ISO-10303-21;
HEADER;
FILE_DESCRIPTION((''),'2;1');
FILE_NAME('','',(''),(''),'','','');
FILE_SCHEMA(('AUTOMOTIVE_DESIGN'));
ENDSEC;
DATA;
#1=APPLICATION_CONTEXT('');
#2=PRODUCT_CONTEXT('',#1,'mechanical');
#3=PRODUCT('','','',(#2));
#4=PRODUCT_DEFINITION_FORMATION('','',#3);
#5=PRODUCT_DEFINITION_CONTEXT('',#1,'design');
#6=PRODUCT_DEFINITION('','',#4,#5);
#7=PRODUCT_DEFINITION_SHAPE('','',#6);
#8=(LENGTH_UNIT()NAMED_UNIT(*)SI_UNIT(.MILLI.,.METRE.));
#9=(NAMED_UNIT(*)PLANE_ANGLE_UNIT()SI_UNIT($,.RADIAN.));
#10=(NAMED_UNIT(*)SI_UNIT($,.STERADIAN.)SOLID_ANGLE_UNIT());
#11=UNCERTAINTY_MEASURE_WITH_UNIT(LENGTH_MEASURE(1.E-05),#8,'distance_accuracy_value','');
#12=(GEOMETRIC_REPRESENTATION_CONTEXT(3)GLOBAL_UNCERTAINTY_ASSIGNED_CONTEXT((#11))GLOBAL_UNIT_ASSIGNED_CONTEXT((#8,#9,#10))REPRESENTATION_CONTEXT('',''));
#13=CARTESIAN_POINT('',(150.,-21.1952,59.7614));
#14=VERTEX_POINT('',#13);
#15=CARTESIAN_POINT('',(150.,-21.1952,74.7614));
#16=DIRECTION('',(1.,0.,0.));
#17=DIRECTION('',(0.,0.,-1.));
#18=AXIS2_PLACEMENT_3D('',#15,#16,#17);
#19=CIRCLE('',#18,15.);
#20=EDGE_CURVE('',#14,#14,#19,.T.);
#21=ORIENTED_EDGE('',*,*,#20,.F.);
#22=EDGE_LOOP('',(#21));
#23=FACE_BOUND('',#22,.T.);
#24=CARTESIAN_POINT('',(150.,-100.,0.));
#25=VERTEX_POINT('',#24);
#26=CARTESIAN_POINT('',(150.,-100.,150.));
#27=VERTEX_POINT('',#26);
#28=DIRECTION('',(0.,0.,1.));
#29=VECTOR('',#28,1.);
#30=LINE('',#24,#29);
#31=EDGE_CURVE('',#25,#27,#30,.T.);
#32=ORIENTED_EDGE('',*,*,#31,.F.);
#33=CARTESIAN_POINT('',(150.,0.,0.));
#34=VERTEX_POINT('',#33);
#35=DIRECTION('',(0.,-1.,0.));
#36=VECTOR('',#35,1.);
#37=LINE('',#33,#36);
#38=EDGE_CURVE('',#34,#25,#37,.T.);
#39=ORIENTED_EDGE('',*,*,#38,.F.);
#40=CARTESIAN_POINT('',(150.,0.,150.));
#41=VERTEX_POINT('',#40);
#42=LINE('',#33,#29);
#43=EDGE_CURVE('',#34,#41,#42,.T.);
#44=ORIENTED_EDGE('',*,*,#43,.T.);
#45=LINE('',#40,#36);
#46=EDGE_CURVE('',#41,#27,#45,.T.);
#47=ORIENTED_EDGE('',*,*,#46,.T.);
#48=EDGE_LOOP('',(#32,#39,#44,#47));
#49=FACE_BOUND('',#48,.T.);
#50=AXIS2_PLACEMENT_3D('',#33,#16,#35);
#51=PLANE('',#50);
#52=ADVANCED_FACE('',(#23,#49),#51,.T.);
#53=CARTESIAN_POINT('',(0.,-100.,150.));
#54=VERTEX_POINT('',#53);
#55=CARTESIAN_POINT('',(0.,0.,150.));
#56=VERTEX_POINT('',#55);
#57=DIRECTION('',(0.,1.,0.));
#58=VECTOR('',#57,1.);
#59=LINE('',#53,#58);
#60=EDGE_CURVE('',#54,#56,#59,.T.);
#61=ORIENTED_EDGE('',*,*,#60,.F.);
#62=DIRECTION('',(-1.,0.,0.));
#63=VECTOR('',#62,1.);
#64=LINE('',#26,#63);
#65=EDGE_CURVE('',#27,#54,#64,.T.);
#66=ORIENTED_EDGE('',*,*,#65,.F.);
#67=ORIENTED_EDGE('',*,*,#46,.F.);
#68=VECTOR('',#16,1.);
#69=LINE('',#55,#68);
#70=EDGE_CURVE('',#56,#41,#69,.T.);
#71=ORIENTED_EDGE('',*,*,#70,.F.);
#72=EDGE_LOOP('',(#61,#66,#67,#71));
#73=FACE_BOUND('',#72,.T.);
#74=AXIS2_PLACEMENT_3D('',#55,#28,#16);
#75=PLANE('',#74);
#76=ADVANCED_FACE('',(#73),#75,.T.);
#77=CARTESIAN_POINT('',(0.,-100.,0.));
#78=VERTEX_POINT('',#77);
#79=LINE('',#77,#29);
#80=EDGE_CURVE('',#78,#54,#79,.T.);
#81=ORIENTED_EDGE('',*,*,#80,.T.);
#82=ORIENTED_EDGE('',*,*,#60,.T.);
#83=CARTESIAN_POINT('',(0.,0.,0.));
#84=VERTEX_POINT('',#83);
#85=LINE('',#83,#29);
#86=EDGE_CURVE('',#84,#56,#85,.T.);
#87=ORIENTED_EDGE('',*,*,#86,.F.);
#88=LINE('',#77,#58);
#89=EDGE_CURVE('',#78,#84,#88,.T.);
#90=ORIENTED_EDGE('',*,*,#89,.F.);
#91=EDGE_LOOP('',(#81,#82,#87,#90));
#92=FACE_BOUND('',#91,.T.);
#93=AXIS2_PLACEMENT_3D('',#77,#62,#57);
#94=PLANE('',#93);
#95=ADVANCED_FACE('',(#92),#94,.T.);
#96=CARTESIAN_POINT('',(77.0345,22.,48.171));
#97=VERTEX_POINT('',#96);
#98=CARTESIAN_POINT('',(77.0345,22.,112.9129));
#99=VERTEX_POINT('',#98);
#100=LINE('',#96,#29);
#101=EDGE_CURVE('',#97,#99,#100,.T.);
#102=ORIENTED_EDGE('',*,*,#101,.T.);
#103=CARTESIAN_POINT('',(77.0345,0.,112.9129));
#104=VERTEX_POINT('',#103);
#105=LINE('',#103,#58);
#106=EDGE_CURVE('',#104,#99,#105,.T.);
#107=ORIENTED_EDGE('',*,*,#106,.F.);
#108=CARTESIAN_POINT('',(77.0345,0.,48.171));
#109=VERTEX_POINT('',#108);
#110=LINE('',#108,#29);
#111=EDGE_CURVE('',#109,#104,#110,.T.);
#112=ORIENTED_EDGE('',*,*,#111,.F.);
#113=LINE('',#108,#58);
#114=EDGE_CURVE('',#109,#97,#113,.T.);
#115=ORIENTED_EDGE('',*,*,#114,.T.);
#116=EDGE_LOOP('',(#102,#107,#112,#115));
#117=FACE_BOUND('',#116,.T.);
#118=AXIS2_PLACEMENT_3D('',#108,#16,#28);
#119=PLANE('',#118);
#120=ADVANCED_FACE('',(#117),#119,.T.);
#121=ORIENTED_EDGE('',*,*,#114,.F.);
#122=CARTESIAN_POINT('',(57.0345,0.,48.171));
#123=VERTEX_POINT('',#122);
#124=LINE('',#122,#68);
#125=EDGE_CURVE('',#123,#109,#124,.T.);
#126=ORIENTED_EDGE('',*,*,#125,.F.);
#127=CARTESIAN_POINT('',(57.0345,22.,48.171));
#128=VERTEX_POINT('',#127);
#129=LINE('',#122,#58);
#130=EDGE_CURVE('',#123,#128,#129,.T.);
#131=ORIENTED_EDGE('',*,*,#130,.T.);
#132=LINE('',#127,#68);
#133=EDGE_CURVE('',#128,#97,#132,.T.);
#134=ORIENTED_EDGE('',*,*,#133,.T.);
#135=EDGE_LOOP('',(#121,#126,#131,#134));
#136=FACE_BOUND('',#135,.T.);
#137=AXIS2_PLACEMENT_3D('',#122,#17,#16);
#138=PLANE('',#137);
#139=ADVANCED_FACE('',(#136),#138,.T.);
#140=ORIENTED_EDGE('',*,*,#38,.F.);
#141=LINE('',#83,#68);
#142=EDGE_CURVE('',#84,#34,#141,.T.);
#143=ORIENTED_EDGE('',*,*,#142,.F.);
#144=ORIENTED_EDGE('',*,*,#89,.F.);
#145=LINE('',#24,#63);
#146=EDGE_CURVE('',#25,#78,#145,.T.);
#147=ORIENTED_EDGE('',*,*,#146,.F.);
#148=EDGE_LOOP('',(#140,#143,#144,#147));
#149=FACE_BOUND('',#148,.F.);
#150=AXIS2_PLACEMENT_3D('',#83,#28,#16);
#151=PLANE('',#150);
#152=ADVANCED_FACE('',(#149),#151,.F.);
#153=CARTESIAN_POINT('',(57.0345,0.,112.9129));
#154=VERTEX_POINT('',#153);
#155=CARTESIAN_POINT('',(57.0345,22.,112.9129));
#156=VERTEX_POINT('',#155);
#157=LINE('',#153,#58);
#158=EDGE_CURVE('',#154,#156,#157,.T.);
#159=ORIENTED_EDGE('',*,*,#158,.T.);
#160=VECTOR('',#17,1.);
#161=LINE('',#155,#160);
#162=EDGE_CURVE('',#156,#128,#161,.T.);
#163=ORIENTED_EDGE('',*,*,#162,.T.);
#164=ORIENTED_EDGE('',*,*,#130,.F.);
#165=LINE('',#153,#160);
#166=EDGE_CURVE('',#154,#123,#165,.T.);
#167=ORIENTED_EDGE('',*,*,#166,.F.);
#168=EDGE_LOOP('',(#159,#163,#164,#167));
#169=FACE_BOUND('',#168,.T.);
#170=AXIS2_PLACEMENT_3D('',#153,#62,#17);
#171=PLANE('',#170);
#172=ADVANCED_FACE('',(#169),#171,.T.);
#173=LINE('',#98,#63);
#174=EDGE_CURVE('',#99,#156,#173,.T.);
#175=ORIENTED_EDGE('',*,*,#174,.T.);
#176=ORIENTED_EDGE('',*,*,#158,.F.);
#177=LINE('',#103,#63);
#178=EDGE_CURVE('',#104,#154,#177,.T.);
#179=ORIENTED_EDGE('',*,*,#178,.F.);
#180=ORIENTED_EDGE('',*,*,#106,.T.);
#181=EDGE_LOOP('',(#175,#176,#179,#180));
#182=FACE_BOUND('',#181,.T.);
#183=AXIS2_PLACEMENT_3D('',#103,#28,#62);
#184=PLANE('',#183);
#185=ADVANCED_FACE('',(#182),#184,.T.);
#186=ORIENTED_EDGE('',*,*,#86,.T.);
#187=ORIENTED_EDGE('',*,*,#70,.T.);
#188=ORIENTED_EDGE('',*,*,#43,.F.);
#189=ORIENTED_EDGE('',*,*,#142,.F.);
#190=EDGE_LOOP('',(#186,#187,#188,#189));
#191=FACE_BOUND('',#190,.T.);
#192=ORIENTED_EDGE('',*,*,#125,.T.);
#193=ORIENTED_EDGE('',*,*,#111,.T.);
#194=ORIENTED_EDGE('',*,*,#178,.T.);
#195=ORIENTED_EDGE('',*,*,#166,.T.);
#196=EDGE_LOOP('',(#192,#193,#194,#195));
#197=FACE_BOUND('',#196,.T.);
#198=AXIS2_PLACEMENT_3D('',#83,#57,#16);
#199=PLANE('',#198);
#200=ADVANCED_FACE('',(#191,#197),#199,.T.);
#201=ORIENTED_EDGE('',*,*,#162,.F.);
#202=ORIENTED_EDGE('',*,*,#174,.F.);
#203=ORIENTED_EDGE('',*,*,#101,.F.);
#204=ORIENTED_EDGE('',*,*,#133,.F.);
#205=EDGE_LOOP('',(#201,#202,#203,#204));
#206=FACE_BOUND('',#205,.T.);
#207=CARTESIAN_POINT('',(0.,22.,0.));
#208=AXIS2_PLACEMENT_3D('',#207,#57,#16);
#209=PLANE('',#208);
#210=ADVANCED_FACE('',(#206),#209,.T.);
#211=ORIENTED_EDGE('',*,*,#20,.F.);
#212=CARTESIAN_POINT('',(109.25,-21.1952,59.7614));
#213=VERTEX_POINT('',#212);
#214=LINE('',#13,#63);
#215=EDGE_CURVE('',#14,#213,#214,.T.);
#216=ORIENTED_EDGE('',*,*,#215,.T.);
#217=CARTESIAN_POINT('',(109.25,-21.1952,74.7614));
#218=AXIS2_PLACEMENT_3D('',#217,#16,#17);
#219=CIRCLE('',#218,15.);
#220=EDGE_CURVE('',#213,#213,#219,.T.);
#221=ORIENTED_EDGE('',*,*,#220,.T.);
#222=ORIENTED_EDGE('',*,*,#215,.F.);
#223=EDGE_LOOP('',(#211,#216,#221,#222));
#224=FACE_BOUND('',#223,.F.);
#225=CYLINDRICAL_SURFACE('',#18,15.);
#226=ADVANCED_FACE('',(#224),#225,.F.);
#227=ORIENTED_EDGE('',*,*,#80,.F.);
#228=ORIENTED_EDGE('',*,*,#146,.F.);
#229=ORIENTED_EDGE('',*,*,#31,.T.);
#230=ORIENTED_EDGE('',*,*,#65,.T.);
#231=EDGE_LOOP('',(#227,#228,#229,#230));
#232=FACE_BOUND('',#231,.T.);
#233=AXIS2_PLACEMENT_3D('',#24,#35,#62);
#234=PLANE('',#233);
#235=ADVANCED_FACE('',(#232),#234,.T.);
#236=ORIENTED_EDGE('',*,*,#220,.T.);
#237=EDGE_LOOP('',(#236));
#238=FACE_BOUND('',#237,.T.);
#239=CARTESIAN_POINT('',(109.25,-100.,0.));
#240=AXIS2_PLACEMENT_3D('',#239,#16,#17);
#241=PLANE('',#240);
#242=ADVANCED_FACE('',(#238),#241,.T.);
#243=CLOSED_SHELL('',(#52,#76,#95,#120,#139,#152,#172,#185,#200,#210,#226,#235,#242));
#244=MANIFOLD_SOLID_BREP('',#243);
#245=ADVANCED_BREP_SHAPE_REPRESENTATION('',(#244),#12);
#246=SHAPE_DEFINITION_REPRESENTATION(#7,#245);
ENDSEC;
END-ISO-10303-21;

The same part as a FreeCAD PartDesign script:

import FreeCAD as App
import Part
import Sketcher
from FreeCAD import Vector
Q = App.Units.Quantity


def add_polygon(sketch, points):
    """Adds a closed chain of lines whose ends are joined by coincident constraints."""
    first, n = sketch.GeometryCount, len(points)
    for a, b in zip(points, points[1:] + points[:1]):
        sketch.addGeometry(Part.LineSegment(App.Vector(*a, 0), App.Vector(*b, 0)), False)
    for i in range(n):
        sketch.addConstraint(Sketcher.Constraint("Coincident", first + i, 2, first + (i + 1) % n, 1))

doc = App.newDocument("Part")
body = doc.addObject("PartDesign::Body", "Body")

sketch1 = body.newObject("Sketcher::SketchObject", "Sketch")
sketch1.AttachmentSupport = (doc.getObject("XY_Plane"), [""])
sketch1.MapMode = "FlatFace"
add_polygon(sketch1, [(150, 0), (0, 0), (0, -100), (150, -100)])
sketch1.addConstraint([
    Sketcher.Constraint("Horizontal", 0),
    Sketcher.Constraint("Vertical", 1),
    Sketcher.Constraint("Horizontal", 2),
    Sketcher.Constraint("Vertical", 3),
    Sketcher.Constraint("Coincident", 0, 2, -1, 1),
    Sketcher.Constraint("DistanceX", 0, 2, 0, 1, Q("150 mm")),
    Sketcher.Constraint("DistanceY", 1, 2, 1, 1, Q("100 mm")),
])
pad1 = body.newObject("PartDesign::Pad", "Pad")
pad1.Profile = sketch1
pad1.Length = 150

sketch2 = body.newObject("Sketcher::SketchObject", "Sketch001")
sketch2.AttachmentSupport = (doc.getObject("YZ_Plane"), [""])
sketch2.MapMode = "FlatFace"
sketch2.AttachmentOffset = App.Placement(Vector(0, 0, 150), App.Rotation())
sketch2.addGeometry(Part.Circle(Vector(-21, 75, 0), Vector(0, 0, 1), 15), False)
sketch2.addConstraint([
    Sketcher.Constraint("Diameter", 0, Q("30 mm")),
    Sketcher.Constraint("DistanceX", 0, 3, -1, 1, Q("21.1952 mm")),
    Sketcher.Constraint("DistanceY", -1, 1, 0, 3, Q("74.7614 mm")),
])
pocket1 = body.newObject("PartDesign::Pocket", "Pocket")
pocket1.Profile = sketch2
pocket1.Length = 40.75

sketch3 = body.newObject("Sketcher::SketchObject", "Sketch002")
sketch3.AttachmentSupport = (doc.getObject("XZ_Plane"), [""])
sketch3.MapMode = "FlatFace"
add_polygon(sketch3, [(77, 48), (57, 48), (57, 113), (77, 113)])
sketch3.addConstraint([
    Sketcher.Constraint("Horizontal", 0),
    Sketcher.Constraint("Vertical", 1),
    Sketcher.Constraint("Horizontal", 2),
    Sketcher.Constraint("Vertical", 3),
    Sketcher.Constraint("DistanceX", 0, 2, 0, 1, Q("20 mm")),
    Sketcher.Constraint("DistanceY", 1, 1, 1, 2, Q("64.742 mm")),
    Sketcher.Constraint("DistanceY", -1, 1, 0, 2, Q("48.171 mm")),
    Sketcher.Constraint("DistanceX", -1, 1, 0, 2, Q("57.0345 mm")),
])
pad2 = body.newObject("PartDesign::Pad", "Pad001")
pad2.Profile = sketch3
pad2.Length = 22
pad2.Reversed = True

doc.recompute()
